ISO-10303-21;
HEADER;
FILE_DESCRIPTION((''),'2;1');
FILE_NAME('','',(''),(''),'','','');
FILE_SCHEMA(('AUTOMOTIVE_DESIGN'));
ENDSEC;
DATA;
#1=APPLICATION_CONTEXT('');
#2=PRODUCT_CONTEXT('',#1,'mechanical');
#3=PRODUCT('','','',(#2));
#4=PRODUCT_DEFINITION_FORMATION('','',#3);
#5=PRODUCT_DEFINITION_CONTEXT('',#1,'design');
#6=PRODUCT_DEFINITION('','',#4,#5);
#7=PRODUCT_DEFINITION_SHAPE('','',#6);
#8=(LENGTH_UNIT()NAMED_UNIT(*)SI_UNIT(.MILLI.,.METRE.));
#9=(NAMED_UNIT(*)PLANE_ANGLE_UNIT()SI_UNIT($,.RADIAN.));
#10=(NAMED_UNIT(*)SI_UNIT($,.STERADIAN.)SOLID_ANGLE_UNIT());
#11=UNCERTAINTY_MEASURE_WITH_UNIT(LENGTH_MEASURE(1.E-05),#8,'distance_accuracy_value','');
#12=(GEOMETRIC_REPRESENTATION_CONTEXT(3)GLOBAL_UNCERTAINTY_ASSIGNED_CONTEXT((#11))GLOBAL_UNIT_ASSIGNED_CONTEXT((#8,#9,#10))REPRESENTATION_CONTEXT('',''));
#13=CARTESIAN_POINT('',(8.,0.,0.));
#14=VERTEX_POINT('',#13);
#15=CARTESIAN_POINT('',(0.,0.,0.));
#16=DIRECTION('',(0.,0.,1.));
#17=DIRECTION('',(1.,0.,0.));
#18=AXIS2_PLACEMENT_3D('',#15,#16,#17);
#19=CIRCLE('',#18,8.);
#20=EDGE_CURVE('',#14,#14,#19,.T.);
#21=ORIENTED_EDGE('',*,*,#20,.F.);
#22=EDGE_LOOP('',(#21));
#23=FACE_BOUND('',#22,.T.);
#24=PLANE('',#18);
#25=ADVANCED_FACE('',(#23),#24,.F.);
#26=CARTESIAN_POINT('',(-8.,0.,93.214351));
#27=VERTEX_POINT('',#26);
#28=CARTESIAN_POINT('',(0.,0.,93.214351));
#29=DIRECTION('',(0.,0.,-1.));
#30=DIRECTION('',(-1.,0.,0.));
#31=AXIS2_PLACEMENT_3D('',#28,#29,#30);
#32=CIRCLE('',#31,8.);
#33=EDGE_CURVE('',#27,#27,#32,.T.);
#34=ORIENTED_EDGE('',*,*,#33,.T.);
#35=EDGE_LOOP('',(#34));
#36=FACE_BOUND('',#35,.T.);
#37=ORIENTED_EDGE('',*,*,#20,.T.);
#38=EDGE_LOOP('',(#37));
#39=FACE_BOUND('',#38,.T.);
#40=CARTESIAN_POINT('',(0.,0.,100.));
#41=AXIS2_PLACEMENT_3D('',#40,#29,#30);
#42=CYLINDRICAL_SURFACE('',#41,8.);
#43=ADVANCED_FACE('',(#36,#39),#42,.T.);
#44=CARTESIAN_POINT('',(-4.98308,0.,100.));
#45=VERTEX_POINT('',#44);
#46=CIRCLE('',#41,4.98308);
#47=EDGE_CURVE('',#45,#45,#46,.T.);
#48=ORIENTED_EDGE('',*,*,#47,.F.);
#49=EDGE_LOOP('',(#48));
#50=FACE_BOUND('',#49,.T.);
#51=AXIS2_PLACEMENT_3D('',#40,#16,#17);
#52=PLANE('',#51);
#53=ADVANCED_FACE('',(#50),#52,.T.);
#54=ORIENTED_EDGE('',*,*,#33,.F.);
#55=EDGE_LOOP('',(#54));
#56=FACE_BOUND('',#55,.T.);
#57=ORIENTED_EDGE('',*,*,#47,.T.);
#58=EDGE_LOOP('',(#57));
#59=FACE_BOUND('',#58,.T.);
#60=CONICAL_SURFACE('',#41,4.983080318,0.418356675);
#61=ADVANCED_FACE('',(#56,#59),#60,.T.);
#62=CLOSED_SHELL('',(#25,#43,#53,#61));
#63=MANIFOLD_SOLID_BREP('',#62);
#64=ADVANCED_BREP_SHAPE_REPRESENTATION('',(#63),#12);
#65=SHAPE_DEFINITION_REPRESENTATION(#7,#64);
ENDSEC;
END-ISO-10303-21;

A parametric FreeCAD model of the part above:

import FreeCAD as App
import Part
import Sketcher

V = App.Vector
Q = App.Units.Quantity

doc = App.newDocument("Part")
body = doc.addObject("PartDesign::Body", "Body")

# Sketch on XY plane
sketch1 = body.newObject("Sketcher::SketchObject", "Sketch")
sketch1.AttachmentSupport = (doc.getObject("XY_Plane"), [""])
sketch1.MapMode = "FlatFace"
sketch1.addGeometry(Part.Circle(V(0, 0, 0), V(0, 0, 1), 8), False)
sketch1.addConstraint([
    Sketcher.Constraint("Coincident", 0, 3, -1, 1),
    Sketcher.Constraint("Diameter", 0, Q("16 mm")),
])
pad1 = body.newObject("PartDesign::Pad", "Pad")
pad1.Profile = sketch1
pad1.Length = 100

# Sketch on YZ plane
sketch2 = body.newObject("Sketcher::SketchObject", "Sketch001")
sketch2.AttachmentSupport = (doc.getObject("YZ_Plane"), [""])
sketch2.MapMode = "FlatFace"
sketch2.addGeometry([
    Part.LineSegment(V(8, 100, 0), V(5, 100, 0)),
    Part.LineSegment(V(5, 100, 0), V(8, 93.2, 0)),
    Part.LineSegment(V(8, 93.2, 0), V(8, 100, 0)),
], False)
sketch2.addConstraint([
    Sketcher.Constraint("Coincident", 0, 2, 1, 1),
    Sketcher.Constraint("Coincident", 1, 2, 2, 1),
    Sketcher.Constraint("Coincident", 2, 2, 0, 1),
    Sketcher.Constraint("Horizontal", 0),
    Sketcher.Constraint("Vertical", 2),
    Sketcher.Constraint("DistanceY", -1, 1, 0, 2, Q("100 mm")),
    Sketcher.Constraint("DistanceX", -1, 1, 1, 2, Q("8 mm")),
    Sketcher.Constraint("DistanceX", 0, 2, 0, 1, Q("3.01692 mm")),
    Sketcher.Constraint("DistanceY", 2, 1, 2, 2, Q("6.785649 mm")),
])
groove = body.newObject("PartDesign::Groove", "Groove")
groove.Profile = sketch2
groove.ReferenceAxis = (sketch2, ["V_Axis"])
groove.Angle = 360

doc.recompute()
